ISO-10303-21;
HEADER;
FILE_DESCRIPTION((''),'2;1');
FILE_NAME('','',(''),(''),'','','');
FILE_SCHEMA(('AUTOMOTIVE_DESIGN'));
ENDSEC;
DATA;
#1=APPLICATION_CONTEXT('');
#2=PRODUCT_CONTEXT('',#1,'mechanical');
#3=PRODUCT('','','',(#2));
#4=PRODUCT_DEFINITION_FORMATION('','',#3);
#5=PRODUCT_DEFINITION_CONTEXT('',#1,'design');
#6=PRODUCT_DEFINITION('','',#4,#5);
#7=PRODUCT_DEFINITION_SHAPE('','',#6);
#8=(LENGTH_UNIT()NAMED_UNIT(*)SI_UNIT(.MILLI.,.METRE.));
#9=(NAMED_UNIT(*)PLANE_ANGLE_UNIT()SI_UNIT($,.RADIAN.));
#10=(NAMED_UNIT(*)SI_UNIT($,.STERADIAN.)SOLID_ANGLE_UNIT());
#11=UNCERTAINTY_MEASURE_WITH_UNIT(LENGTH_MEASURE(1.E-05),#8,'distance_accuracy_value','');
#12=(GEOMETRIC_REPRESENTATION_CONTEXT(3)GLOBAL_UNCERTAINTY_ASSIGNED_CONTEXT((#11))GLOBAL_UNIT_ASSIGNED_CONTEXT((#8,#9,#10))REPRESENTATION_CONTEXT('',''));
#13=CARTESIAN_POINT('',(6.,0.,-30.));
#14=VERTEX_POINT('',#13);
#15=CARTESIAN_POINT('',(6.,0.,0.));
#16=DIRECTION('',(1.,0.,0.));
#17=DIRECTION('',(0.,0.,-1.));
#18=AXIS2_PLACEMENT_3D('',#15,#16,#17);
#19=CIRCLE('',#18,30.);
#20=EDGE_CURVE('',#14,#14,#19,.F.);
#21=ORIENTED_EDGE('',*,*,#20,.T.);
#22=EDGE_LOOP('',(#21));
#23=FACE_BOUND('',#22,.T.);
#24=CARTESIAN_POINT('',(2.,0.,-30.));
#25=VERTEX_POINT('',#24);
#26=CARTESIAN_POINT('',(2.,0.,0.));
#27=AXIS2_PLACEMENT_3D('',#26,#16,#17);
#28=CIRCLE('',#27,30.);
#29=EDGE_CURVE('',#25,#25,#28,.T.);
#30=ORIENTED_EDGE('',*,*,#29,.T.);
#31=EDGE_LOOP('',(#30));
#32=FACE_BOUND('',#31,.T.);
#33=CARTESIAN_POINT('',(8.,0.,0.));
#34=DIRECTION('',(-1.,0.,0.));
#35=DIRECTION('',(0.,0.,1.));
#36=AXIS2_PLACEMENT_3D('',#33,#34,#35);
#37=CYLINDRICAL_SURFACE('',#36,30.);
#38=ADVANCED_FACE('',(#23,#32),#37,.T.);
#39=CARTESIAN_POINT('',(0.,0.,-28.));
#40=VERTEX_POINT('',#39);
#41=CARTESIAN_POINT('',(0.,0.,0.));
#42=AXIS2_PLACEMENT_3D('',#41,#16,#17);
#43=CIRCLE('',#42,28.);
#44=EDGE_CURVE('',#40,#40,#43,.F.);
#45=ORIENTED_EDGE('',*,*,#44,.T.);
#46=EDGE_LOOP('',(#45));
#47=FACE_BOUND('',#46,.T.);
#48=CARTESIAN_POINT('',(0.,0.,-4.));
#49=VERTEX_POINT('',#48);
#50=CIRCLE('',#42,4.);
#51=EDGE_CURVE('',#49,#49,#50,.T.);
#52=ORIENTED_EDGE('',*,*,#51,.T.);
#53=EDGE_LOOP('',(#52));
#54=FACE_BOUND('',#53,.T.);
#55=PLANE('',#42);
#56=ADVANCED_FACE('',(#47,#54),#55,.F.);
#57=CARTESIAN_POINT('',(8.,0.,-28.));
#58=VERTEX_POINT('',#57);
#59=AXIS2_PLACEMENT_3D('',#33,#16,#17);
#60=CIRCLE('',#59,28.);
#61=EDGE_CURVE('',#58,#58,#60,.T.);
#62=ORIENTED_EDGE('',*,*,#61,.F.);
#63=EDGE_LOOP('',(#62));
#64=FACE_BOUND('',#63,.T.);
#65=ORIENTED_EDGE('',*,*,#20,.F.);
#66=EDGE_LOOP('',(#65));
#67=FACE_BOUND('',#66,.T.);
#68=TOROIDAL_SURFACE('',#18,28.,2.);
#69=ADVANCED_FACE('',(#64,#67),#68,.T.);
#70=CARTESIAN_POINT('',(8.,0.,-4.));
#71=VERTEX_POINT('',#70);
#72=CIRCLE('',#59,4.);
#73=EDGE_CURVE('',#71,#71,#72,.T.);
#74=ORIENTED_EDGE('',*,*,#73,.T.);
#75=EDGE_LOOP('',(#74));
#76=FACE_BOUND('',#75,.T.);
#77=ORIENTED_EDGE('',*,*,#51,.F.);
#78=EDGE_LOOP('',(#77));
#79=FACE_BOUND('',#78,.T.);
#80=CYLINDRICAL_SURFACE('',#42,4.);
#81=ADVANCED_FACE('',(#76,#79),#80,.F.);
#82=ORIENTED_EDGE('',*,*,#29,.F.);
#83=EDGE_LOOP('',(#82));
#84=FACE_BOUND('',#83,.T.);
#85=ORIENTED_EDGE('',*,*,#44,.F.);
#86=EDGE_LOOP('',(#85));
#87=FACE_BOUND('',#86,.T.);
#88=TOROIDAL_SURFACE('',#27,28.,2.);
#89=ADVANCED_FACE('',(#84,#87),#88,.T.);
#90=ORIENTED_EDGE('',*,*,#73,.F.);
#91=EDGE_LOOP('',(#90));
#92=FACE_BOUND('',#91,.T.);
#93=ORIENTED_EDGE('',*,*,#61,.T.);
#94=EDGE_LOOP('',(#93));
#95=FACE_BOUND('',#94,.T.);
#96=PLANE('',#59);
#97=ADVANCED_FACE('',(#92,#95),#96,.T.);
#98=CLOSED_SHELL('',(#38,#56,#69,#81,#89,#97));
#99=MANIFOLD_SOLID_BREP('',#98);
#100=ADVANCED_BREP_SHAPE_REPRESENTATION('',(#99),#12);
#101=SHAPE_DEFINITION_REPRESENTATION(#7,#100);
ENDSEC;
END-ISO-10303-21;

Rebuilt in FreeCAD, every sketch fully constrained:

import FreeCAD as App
import Part
import Sketcher
from FreeCAD import Vector


def edges_at(feature, points):
    """Names of the edges that pass closest to the given points."""
    edges = feature.Shape.Edges
    near = lambda p: min(range(len(edges)), key=lambda i: edges[i].distToShape(Part.Vertex(*p))[0])
    return sorted({f"Edge{near(p) + 1}" for p in points})

doc = App.newDocument("Part")
params = doc.addObject("Spreadsheet::Sheet", "Params")
for row, (alias, value) in enumerate([
    ("sketch1_diameter", "60 mm"),
    ("pad1_length", "8 mm"),
    ("sketch2_diameter", "8 mm"),
    ("fillet_radius", "2 mm"),
], start=1):
    params.set(f"A{row}", alias)
    params.set(f"B{row}", "=" + value)
    params.setAlias(f"B{row}", alias)

body = doc.addObject("PartDesign::Body", "Body")

sketch1 = doc.addObject("Sketcher::SketchObject", "Sketch")
body.addObject(sketch1)
sketch1.AttachmentSupport = (doc.YZ_Plane, [""])
sketch1.MapMode = "FlatFace"
sketch1.addGeometry(Part.Circle(Vector(0, 0, 0), Vector(0, 0, 1), 30), False)
sketch1.addConstraint([
    Sketcher.Constraint("Coincident", 0, 3, -1, 1),
    Sketcher.Constraint("Diameter", 0, 60.0),
])
sketch1.setExpression("Constraints[1]", "Params.sketch1_diameter")
pad1 = doc.addObject("PartDesign::Pad", "Pad")
body.addObject(pad1)
pad1.Profile = sketch1
pad1.setExpression("Length", "Params.pad1_length")

sketch2 = doc.addObject("Sketcher::SketchObject", "Sketch001")
body.addObject(sketch2)
sketch2.AttachmentSupport = (doc.YZ_Plane, [""])
sketch2.MapMode = "FlatFace"
sketch2.AttachmentOffset = App.Placement(Vector(0, 0, 8), App.Rotation())
sketch2.addGeometry(Part.Circle(Vector(0, 0, 0), Vector(0, 0, 1), 4), False)
sketch2.addConstraint([
    Sketcher.Constraint("Coincident", 0, 3, -1, 1),
    Sketcher.Constraint("Diameter", 0, 8.0),
])
sketch2.setExpression("Constraints[1]", "Params.sketch2_diameter")
pocket1 = doc.addObject("PartDesign::Pocket", "Pocket")
body.addObject(pocket1)
pocket1.Profile = sketch2
pocket1.Type = "ThroughAll"
doc.recompute()

fillet = doc.addObject("PartDesign::Fillet", "Fillet")
body.addObject(fillet)
fillet.Base = (pocket1, edges_at(pocket1, [(0, 0, 30), (8, 0, 30)]))
fillet.setExpression("Radius", "Params.fillet_radius")

doc.recompute()
